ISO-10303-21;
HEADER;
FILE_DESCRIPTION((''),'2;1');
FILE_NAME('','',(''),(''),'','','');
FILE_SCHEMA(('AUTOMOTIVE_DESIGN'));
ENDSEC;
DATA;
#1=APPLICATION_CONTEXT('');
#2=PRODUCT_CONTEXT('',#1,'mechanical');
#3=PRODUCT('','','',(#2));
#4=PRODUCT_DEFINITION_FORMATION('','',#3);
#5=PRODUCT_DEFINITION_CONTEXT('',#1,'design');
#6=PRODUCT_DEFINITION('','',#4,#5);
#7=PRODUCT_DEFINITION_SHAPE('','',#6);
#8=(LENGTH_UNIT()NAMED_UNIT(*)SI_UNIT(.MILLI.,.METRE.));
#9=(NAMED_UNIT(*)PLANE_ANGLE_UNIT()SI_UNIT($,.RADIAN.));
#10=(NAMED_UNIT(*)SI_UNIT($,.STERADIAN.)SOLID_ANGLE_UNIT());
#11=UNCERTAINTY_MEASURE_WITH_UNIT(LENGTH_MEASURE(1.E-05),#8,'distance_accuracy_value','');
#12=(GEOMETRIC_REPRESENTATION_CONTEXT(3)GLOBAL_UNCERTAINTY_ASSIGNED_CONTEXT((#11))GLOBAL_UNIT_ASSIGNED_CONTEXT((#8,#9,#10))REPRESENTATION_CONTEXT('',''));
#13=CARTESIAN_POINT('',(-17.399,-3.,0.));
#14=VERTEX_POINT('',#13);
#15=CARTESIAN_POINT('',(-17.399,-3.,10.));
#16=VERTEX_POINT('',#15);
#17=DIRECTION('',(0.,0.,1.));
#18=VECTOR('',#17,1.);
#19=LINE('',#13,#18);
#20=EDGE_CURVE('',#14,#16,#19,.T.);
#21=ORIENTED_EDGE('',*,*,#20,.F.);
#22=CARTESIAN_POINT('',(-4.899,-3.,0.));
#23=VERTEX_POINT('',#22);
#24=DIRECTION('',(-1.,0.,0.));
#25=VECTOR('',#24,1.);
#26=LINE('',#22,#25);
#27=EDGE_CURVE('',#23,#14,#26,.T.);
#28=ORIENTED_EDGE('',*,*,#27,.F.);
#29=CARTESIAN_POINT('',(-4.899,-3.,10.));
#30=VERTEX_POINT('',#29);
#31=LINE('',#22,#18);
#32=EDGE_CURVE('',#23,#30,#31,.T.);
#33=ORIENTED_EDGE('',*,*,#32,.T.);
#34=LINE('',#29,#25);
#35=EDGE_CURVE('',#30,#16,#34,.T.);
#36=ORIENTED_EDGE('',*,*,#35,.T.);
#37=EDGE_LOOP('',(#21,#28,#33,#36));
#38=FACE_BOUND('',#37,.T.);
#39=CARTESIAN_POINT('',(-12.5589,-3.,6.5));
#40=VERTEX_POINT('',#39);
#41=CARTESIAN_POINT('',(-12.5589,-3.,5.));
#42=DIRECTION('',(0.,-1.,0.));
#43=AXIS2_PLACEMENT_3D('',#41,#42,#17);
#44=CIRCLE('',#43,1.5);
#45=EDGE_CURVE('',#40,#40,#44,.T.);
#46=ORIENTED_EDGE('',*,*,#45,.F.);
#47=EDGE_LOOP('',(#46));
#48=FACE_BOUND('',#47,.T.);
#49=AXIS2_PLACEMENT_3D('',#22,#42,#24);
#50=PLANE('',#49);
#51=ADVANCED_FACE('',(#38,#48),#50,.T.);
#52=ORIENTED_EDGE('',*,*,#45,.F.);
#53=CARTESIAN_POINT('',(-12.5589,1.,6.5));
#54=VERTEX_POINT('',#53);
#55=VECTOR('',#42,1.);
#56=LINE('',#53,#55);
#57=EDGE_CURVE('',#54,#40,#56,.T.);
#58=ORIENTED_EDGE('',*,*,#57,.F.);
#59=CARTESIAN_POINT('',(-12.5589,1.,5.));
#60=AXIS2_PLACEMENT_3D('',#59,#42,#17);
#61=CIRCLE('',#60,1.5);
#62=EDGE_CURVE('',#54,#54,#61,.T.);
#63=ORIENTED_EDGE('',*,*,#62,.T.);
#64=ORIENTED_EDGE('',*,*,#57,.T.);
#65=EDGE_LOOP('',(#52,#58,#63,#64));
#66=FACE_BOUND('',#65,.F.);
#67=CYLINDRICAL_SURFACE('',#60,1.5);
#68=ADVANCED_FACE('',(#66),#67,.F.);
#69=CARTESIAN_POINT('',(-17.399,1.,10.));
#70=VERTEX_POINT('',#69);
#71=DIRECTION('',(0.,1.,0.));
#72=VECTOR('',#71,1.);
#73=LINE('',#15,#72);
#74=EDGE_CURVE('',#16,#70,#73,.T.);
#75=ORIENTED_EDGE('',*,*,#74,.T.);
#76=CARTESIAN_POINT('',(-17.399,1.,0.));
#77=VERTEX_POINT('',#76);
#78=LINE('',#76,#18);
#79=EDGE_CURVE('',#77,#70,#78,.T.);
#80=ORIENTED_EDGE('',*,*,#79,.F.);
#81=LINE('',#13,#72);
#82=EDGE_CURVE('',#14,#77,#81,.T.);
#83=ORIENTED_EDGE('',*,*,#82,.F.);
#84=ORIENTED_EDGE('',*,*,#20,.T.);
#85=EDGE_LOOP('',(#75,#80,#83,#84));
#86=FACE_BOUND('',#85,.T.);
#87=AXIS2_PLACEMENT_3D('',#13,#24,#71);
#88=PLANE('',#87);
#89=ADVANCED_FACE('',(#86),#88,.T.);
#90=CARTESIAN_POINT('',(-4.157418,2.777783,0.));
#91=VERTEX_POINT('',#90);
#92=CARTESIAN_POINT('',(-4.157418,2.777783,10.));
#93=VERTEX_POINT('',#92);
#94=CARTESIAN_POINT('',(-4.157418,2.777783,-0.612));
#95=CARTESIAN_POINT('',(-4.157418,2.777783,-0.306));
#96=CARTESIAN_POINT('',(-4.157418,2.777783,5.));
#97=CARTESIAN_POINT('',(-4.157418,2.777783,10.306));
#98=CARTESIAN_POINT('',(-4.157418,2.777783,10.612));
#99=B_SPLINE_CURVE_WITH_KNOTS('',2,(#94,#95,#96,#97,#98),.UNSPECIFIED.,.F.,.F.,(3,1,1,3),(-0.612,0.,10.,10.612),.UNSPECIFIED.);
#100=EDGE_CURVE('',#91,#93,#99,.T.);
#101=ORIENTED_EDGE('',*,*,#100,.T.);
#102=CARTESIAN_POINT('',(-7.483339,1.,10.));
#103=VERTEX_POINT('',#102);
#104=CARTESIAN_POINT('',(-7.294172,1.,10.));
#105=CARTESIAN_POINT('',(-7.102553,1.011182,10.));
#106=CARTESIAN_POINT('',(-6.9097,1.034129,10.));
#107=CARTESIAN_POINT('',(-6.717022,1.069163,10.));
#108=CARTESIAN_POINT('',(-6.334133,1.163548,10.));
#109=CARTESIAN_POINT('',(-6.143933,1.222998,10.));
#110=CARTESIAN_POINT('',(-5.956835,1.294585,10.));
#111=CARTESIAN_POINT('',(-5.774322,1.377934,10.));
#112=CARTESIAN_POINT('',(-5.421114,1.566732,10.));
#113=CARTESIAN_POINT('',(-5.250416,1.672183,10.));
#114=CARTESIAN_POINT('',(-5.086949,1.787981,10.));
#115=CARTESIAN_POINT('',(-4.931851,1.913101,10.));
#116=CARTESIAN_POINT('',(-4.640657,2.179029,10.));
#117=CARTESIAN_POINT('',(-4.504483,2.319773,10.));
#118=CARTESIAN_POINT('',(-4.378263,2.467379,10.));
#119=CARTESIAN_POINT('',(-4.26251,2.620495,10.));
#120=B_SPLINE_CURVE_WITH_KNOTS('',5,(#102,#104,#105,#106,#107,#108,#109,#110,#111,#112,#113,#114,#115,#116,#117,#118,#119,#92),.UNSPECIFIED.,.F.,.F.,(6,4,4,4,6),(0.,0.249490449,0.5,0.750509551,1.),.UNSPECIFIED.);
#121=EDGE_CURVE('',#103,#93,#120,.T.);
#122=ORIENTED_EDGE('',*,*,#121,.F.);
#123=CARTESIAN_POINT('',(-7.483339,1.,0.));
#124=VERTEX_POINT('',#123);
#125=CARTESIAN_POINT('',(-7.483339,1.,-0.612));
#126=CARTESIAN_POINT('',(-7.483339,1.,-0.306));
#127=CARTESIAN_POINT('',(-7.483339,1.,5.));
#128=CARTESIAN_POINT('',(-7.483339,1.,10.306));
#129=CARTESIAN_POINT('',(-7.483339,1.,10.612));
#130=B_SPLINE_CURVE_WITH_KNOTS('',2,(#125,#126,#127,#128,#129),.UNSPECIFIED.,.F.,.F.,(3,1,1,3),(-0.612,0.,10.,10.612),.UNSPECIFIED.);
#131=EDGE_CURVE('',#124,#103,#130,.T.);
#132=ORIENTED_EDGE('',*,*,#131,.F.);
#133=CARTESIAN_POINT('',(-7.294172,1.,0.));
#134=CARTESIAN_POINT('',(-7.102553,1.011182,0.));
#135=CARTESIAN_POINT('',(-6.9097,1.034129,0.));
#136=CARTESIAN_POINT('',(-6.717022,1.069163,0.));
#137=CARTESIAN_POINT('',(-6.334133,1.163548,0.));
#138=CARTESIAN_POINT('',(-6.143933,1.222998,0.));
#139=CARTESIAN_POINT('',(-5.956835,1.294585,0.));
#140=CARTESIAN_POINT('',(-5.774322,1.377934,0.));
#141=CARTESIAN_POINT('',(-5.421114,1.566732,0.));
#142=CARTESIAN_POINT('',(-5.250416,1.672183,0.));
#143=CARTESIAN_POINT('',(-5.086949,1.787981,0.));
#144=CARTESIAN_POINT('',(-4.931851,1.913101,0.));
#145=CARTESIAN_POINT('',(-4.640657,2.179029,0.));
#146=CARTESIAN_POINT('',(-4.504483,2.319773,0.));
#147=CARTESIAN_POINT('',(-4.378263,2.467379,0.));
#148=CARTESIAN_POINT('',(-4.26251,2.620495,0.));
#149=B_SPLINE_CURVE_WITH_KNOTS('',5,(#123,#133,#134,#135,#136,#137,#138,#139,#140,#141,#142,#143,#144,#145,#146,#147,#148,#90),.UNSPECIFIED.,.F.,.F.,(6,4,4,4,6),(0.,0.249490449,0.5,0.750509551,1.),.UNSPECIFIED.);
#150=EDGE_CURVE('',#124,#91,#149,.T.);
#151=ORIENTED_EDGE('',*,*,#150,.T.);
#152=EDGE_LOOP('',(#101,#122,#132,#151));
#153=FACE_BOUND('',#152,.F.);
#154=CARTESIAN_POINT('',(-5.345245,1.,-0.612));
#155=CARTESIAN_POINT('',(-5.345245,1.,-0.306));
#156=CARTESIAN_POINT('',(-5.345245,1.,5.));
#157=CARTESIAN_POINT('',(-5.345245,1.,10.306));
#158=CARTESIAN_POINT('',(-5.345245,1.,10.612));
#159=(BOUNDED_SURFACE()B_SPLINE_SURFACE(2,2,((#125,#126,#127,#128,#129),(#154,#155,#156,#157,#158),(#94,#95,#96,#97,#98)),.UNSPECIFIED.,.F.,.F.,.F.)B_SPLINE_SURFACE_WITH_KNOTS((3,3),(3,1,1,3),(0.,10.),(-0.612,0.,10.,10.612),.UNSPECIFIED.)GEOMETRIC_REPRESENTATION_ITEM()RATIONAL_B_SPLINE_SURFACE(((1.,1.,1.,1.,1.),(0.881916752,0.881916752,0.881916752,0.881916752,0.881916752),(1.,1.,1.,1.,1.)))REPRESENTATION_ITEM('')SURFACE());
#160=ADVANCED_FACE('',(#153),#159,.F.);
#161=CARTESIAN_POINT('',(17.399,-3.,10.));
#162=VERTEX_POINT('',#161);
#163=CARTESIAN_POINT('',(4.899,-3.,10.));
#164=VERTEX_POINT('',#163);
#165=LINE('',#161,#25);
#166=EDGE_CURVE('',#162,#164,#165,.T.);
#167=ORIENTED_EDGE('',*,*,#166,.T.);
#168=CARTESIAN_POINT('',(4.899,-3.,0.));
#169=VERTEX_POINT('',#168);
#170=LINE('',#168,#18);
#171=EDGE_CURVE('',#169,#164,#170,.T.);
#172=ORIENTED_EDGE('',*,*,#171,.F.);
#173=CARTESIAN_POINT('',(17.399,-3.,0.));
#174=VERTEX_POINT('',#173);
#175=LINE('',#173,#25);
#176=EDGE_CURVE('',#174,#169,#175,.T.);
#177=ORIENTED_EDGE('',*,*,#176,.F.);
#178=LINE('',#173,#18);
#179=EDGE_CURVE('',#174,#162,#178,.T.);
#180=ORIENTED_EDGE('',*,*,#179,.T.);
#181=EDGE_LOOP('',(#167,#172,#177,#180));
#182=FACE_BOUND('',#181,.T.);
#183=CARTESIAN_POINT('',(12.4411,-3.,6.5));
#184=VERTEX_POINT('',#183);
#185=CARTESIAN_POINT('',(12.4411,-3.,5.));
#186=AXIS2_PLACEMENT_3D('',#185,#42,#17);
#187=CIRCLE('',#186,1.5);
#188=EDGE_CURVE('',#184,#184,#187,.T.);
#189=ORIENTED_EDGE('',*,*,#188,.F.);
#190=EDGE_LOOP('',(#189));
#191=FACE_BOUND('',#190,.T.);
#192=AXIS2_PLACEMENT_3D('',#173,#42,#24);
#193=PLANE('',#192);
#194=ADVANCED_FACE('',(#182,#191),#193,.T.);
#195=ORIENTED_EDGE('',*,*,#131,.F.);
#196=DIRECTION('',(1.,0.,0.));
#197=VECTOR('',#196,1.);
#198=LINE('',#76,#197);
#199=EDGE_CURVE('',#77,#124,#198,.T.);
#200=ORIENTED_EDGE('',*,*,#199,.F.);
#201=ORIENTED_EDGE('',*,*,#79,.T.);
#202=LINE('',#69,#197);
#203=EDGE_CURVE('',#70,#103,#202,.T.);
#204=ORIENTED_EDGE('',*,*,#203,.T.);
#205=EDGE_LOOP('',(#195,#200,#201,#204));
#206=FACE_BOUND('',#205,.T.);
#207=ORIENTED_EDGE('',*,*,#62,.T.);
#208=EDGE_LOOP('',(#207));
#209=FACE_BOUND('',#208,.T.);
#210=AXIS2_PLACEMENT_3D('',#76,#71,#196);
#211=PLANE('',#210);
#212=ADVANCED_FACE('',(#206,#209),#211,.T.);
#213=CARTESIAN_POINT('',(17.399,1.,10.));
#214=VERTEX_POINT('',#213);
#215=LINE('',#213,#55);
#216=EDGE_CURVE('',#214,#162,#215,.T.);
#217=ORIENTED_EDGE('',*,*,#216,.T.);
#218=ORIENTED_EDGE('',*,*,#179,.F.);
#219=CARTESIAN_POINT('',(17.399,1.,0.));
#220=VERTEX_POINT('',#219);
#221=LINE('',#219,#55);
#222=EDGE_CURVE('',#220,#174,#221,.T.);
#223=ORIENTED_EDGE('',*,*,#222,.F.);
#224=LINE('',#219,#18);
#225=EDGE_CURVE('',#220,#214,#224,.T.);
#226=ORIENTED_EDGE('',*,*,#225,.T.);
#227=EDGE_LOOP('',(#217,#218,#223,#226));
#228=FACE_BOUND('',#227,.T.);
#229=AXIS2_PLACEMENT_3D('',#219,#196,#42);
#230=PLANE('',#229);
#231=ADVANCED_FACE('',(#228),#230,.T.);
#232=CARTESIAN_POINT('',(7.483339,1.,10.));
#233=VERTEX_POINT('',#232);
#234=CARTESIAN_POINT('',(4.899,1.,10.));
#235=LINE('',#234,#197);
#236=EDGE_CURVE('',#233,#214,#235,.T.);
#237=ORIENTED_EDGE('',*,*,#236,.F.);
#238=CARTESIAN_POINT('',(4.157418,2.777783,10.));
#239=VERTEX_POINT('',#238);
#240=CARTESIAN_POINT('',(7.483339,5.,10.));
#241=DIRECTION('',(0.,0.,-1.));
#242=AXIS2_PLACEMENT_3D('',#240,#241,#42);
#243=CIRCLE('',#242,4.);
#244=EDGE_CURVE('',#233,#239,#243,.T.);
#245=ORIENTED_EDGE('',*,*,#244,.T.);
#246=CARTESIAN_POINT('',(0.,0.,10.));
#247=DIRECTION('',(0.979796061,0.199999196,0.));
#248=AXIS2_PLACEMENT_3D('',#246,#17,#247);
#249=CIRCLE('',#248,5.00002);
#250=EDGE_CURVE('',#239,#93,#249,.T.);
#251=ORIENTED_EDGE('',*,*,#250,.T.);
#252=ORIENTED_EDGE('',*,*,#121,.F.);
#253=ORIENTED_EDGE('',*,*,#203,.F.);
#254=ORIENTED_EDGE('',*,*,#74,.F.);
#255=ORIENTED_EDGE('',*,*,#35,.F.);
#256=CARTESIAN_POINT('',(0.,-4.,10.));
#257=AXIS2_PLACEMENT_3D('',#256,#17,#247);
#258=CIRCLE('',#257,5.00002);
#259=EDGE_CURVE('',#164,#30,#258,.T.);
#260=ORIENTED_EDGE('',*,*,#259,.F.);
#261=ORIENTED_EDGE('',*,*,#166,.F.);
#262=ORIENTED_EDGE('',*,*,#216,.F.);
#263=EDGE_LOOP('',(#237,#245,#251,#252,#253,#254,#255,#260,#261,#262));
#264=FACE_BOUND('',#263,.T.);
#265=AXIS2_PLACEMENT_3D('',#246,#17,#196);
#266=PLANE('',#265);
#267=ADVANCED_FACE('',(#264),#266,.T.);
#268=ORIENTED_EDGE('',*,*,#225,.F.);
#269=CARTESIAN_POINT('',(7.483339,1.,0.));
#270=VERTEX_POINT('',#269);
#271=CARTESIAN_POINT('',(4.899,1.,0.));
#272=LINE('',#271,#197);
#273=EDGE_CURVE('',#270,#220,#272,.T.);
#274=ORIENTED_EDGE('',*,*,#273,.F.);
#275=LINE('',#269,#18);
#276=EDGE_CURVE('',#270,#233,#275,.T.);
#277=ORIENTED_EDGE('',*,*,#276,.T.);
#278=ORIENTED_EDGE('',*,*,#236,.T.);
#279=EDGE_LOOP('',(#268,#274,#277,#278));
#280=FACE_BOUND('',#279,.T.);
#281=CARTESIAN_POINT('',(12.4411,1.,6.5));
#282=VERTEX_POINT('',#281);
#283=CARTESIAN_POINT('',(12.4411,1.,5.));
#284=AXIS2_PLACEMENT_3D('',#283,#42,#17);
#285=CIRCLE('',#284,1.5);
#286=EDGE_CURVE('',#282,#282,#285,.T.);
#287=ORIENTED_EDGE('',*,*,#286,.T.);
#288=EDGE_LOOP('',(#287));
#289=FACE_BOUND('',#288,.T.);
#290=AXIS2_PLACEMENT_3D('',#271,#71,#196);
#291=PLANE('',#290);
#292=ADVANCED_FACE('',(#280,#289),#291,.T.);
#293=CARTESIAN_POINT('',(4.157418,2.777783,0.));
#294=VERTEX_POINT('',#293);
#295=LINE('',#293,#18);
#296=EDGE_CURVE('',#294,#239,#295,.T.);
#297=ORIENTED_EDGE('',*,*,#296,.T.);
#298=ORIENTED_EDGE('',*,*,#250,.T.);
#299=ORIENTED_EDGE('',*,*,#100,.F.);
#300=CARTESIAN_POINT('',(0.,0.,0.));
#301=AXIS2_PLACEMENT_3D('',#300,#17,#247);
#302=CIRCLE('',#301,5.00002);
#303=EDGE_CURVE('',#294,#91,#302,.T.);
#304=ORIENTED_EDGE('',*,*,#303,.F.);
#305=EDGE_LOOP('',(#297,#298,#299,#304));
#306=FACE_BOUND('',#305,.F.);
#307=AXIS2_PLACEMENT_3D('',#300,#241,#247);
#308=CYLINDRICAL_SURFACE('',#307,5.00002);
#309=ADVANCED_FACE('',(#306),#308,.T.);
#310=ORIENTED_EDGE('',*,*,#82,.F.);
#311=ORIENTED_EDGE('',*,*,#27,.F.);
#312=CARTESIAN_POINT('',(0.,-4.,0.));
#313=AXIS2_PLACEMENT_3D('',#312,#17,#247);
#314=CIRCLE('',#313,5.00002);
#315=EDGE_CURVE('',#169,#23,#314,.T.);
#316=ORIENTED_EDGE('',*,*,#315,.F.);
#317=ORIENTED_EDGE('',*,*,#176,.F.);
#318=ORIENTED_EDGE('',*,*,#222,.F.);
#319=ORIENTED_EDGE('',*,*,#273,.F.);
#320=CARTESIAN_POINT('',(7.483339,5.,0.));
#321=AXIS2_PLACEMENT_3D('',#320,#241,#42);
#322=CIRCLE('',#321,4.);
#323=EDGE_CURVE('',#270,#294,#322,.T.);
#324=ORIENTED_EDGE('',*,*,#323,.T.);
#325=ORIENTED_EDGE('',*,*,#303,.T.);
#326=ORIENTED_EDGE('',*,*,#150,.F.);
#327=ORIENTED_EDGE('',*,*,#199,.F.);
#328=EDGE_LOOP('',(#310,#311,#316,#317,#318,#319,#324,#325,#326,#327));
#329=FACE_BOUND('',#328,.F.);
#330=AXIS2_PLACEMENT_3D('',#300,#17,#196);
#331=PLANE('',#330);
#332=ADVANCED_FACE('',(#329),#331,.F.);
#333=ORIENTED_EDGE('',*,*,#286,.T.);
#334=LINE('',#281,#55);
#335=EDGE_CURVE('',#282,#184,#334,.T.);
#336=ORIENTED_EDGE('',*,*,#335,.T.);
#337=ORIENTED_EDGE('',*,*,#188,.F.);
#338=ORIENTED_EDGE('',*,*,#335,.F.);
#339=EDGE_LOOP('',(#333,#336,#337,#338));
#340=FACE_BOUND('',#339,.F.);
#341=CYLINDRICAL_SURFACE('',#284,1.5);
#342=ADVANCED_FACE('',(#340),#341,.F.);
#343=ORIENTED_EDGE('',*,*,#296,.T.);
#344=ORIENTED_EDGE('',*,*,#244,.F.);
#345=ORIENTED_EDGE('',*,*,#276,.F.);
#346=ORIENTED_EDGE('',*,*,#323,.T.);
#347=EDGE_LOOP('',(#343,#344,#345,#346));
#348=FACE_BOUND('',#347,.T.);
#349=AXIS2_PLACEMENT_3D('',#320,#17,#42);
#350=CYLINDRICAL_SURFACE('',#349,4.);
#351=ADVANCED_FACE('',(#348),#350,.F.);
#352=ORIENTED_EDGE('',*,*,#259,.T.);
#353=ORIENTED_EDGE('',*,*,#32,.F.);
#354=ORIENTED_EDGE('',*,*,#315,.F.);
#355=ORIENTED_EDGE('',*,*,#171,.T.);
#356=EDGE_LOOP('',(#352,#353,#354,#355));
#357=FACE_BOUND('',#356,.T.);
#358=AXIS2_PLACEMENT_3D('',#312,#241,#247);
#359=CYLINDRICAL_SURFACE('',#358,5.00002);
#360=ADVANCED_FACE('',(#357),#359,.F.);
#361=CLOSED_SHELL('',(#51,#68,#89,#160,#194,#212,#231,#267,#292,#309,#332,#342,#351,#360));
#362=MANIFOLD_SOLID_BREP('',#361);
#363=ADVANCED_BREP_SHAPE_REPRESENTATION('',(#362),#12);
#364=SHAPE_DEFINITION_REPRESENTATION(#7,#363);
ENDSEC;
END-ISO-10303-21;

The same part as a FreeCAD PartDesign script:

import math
import FreeCAD as App
import Part
import Sketcher
Q = App.Units.Quantity


def edges_at(feature, points):
    """Names of the edges that pass closest to the given points."""
    edges = feature.Shape.Edges
    near = lambda p: min(range(len(edges)), key=lambda i: edges[i].distToShape(Part.Vertex(*p))[0])
    return sorted({f"Edge{near(p) + 1}" for p in points})

doc = App.newDocument("Part")
body = doc.addObject("PartDesign::Body", "Body")

sketch1 = body.newObject("Sketcher::SketchObject", "Sketch")
sketch1.AttachmentSupport = (doc.getObject("XY_Plane"), [""])
sketch1.MapMode = "FlatFace"
sketch1.addGeometry(Part.LineSegment(App.Vector(17.399, 1, 0), App.Vector(4.899, 1, 0)), False)
sketch1.addGeometry(Part.ArcOfCircle(Part.Circle(App.Vector(0, 0, 0), App.Vector(0, 0, 1), 5.00002), math.radians(11.536912), math.radians(168.463088)), False)
sketch1.addGeometry(Part.LineSegment(App.Vector(-4.899, 1, 0), App.Vector(-17.399, 1, 0)), False)
sketch1.addGeometry(Part.LineSegment(App.Vector(-17.399, 1, 0), App.Vector(-17.399, -3, 0)), False)
sketch1.addGeometry(Part.LineSegment(App.Vector(-17.399, -3, 0), App.Vector(-4.899, -3, 0)), False)
sketch1.addGeometry(Part.ArcOfCircle(Part.Circle(App.Vector(0, -4, 0), App.Vector(0, 0, 1), 5.00002), math.radians(11.536912), math.radians(168.463088)), False)
sketch1.addGeometry(Part.LineSegment(App.Vector(4.899, -3, 0), App.Vector(17.399, -3, 0)), False)
sketch1.addGeometry(Part.LineSegment(App.Vector(17.399, -3, 0), App.Vector(17.399, 1, 0)), False)
sketch1.addConstraint(Sketcher.Constraint("Coincident", 0, 2, 1, 1))
sketch1.addConstraint(Sketcher.Constraint("Coincident", 1, 2, 2, 1))
sketch1.addConstraint(Sketcher.Constraint("Coincident", 2, 2, 3, 1))
sketch1.addConstraint(Sketcher.Constraint("Coincident", 3, 2, 4, 1))
sketch1.addConstraint(Sketcher.Constraint("Coincident", 4, 2, 5, 2))
sketch1.addConstraint(Sketcher.Constraint("Coincident", 5, 1, 6, 1))
sketch1.addConstraint(Sketcher.Constraint("Coincident", 6, 2, 7, 1))
sketch1.addConstraint(Sketcher.Constraint("Coincident", 7, 2, 0, 1))
sketch1.addConstraint(Sketcher.Constraint("Horizontal", 0))
sketch1.addConstraint(Sketcher.Constraint("Horizontal", 2))
sketch1.addConstraint(Sketcher.Constraint("Vertical", 3))
sketch1.addConstraint(Sketcher.Constraint("Horizontal", 4))
sketch1.addConstraint(Sketcher.Constraint("Horizontal", 6))
sketch1.addConstraint(Sketcher.Constraint("Vertical", 7))
sketch1.addConstraint(Sketcher.Constraint("Coincident", 1, 3, -1, 1))
sketch1.addConstraint(Sketcher.Constraint("Equal", 1, 5))
sketch1.addConstraint(Sketcher.Constraint("Symmetric", 4, 2, 5, 1, -2))
sketch1.addConstraint(Sketcher.Constraint("Symmetric", 2, 2, 7, 2, -2))
sketch1.addConstraint(Sketcher.Constraint("Vertical", 1, 2, 4, 2))
sketch1.addConstraint(Sketcher.Constraint("Radius", 1, Q("5 mm")))
sketch1.addConstraint(Sketcher.Constraint("DistanceY", 3, 2, 3, 1, Q("4 mm")))
sketch1.addConstraint(Sketcher.Constraint("DistanceX", 0, 2, 0, 1, Q("12.5 mm")))
sketch1.addConstraint(Sketcher.Constraint("DistanceY", -1, 1, 0, 2, Q("1 mm")))
pad1 = body.newObject("PartDesign::Pad", "Pad")
pad1.Profile = sketch1
pad1.Length = 10
doc.recompute()

fillet = body.newObject("PartDesign::Fillet", "Fillet")
fillet.Base = (pad1, edges_at(pad1, [(-4.899, 1, 5), (4.899, 1, 5)]))
fillet.Radius = 4

sketch2 = body.newObject("Sketcher::SketchObject", "Sketch001")
sketch2.AttachmentSupport = (doc.getObject("XZ_Plane"), [""])
sketch2.MapMode = "FlatFace"
sketch2.AttachmentOffset = App.Placement(App.Vector(0, 0, -1), App.Rotation())
sketch2.addGeometry(Part.Circle(App.Vector(-12.5589, 5, 0), App.Vector(0, 0, 1), 1.5), False)
sketch2.addGeometry(Part.Circle(App.Vector(12.4411, 5, 0), App.Vector(0, 0, 1), 1.5), False)
sketch2.addConstraint(Sketcher.Constraint("Equal", 0, 1))
sketch2.addConstraint(Sketcher.Constraint("Horizontal", 0, 3, 1, 3))
sketch2.addConstraint(Sketcher.Constraint("Diameter", 0, Q("3 mm")))
sketch2.addConstraint(Sketcher.Constraint("DistanceY", -1, 1, 0, 3, Q("5 mm")))
sketch2.addConstraint(Sketcher.Constraint("DistanceX", 0, 3, 1, 3, Q("25 mm")))
sketch2.addConstraint(Sketcher.Constraint("DistanceX", 0, 3, -1, 1, Q("12.559 mm")))
doc.recompute()
hole = body.newObject("PartDesign::Hole", "Hole")
hole.Profile = sketch2
hole.ThreadType = "None"
hole.Diameter = 3
hole.DepthType = "ThroughAll"
hole.Reversed = True

doc.recompute()
